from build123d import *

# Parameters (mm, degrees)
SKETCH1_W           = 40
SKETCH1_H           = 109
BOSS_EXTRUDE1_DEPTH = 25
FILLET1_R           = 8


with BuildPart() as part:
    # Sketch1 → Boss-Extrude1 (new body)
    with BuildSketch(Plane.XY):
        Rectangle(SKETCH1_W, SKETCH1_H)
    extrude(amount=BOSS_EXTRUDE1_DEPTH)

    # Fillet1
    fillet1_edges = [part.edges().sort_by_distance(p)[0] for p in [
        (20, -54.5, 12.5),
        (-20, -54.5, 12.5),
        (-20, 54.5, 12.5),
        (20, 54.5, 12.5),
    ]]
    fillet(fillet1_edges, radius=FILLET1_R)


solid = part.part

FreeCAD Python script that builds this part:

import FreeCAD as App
import Part
import Sketcher

V = App.Vector
Q = App.Units.Quantity


def edges_at(feature, points):
    """Names of the edges that pass closest to the given points."""
    edges = feature.Shape.Edges
    near = lambda p: min(range(len(edges)), key=lambda i: edges[i].distToShape(Part.Vertex(*p))[0])
    return sorted({f"Edge{near(p) + 1}" for p in points})


def add_polygon(sketch, points):
    """Adds a closed chain of lines whose ends are joined by coincident constraints."""
    first, n = sketch.GeometryCount, len(points)
    for a, b in zip(points, points[1:] + points[:1]):
        sketch.addGeometry(Part.LineSegment(App.Vector(*a, 0), App.Vector(*b, 0)), False)
    for i in range(n):
        sketch.addConstraint(Sketcher.Constraint("Coincident", first + i, 2, first + (i + 1) % n, 1))

doc = App.newDocument("Part")
body = doc.addObject("PartDesign::Body", "Body")

# Sketch on XY plane
sketch1 = body.newObject("Sketcher::SketchObject", "Sketch")
sketch1.AttachmentSupport = (doc.getObject("XY_Plane"), [""])
sketch1.MapMode = "FlatFace"
add_polygon(sketch1, [(-20, 54), (-20, -54), (20, -54), (20, 54)])  # lines 0-3
sketch1.addConstraint([
    Sketcher.Constraint("Vertical", 0),
    Sketcher.Constraint("Horizontal", 1),
    Sketcher.Constraint("Vertical", 2),
    Sketcher.Constraint("Horizontal", 3),
    Sketcher.Constraint("Symmetric", 0, 2, 2, 2, -1, 1),
    Sketcher.Constraint("DistanceX", 1, 1, 1, 2, Q("40 mm")),
    Sketcher.Constraint("DistanceY", 0, 2, 0, 1, Q("109 mm")),
])
pad1 = body.newObject("PartDesign::Pad", "Pad")
pad1.Profile = sketch1
pad1.Length = 25
doc.recompute()

fillet = body.newObject("PartDesign::Fillet", "Fillet")
fillet.Base = (pad1, edges_at(pad1, [
    (20, -54.5, 12.5),
    (-20, -54.5, 12.5),
    (-20, 54.5, 12.5),
    (20, 54.5, 12.5),
]))
fillet.Radius = 8

doc.recompute()
